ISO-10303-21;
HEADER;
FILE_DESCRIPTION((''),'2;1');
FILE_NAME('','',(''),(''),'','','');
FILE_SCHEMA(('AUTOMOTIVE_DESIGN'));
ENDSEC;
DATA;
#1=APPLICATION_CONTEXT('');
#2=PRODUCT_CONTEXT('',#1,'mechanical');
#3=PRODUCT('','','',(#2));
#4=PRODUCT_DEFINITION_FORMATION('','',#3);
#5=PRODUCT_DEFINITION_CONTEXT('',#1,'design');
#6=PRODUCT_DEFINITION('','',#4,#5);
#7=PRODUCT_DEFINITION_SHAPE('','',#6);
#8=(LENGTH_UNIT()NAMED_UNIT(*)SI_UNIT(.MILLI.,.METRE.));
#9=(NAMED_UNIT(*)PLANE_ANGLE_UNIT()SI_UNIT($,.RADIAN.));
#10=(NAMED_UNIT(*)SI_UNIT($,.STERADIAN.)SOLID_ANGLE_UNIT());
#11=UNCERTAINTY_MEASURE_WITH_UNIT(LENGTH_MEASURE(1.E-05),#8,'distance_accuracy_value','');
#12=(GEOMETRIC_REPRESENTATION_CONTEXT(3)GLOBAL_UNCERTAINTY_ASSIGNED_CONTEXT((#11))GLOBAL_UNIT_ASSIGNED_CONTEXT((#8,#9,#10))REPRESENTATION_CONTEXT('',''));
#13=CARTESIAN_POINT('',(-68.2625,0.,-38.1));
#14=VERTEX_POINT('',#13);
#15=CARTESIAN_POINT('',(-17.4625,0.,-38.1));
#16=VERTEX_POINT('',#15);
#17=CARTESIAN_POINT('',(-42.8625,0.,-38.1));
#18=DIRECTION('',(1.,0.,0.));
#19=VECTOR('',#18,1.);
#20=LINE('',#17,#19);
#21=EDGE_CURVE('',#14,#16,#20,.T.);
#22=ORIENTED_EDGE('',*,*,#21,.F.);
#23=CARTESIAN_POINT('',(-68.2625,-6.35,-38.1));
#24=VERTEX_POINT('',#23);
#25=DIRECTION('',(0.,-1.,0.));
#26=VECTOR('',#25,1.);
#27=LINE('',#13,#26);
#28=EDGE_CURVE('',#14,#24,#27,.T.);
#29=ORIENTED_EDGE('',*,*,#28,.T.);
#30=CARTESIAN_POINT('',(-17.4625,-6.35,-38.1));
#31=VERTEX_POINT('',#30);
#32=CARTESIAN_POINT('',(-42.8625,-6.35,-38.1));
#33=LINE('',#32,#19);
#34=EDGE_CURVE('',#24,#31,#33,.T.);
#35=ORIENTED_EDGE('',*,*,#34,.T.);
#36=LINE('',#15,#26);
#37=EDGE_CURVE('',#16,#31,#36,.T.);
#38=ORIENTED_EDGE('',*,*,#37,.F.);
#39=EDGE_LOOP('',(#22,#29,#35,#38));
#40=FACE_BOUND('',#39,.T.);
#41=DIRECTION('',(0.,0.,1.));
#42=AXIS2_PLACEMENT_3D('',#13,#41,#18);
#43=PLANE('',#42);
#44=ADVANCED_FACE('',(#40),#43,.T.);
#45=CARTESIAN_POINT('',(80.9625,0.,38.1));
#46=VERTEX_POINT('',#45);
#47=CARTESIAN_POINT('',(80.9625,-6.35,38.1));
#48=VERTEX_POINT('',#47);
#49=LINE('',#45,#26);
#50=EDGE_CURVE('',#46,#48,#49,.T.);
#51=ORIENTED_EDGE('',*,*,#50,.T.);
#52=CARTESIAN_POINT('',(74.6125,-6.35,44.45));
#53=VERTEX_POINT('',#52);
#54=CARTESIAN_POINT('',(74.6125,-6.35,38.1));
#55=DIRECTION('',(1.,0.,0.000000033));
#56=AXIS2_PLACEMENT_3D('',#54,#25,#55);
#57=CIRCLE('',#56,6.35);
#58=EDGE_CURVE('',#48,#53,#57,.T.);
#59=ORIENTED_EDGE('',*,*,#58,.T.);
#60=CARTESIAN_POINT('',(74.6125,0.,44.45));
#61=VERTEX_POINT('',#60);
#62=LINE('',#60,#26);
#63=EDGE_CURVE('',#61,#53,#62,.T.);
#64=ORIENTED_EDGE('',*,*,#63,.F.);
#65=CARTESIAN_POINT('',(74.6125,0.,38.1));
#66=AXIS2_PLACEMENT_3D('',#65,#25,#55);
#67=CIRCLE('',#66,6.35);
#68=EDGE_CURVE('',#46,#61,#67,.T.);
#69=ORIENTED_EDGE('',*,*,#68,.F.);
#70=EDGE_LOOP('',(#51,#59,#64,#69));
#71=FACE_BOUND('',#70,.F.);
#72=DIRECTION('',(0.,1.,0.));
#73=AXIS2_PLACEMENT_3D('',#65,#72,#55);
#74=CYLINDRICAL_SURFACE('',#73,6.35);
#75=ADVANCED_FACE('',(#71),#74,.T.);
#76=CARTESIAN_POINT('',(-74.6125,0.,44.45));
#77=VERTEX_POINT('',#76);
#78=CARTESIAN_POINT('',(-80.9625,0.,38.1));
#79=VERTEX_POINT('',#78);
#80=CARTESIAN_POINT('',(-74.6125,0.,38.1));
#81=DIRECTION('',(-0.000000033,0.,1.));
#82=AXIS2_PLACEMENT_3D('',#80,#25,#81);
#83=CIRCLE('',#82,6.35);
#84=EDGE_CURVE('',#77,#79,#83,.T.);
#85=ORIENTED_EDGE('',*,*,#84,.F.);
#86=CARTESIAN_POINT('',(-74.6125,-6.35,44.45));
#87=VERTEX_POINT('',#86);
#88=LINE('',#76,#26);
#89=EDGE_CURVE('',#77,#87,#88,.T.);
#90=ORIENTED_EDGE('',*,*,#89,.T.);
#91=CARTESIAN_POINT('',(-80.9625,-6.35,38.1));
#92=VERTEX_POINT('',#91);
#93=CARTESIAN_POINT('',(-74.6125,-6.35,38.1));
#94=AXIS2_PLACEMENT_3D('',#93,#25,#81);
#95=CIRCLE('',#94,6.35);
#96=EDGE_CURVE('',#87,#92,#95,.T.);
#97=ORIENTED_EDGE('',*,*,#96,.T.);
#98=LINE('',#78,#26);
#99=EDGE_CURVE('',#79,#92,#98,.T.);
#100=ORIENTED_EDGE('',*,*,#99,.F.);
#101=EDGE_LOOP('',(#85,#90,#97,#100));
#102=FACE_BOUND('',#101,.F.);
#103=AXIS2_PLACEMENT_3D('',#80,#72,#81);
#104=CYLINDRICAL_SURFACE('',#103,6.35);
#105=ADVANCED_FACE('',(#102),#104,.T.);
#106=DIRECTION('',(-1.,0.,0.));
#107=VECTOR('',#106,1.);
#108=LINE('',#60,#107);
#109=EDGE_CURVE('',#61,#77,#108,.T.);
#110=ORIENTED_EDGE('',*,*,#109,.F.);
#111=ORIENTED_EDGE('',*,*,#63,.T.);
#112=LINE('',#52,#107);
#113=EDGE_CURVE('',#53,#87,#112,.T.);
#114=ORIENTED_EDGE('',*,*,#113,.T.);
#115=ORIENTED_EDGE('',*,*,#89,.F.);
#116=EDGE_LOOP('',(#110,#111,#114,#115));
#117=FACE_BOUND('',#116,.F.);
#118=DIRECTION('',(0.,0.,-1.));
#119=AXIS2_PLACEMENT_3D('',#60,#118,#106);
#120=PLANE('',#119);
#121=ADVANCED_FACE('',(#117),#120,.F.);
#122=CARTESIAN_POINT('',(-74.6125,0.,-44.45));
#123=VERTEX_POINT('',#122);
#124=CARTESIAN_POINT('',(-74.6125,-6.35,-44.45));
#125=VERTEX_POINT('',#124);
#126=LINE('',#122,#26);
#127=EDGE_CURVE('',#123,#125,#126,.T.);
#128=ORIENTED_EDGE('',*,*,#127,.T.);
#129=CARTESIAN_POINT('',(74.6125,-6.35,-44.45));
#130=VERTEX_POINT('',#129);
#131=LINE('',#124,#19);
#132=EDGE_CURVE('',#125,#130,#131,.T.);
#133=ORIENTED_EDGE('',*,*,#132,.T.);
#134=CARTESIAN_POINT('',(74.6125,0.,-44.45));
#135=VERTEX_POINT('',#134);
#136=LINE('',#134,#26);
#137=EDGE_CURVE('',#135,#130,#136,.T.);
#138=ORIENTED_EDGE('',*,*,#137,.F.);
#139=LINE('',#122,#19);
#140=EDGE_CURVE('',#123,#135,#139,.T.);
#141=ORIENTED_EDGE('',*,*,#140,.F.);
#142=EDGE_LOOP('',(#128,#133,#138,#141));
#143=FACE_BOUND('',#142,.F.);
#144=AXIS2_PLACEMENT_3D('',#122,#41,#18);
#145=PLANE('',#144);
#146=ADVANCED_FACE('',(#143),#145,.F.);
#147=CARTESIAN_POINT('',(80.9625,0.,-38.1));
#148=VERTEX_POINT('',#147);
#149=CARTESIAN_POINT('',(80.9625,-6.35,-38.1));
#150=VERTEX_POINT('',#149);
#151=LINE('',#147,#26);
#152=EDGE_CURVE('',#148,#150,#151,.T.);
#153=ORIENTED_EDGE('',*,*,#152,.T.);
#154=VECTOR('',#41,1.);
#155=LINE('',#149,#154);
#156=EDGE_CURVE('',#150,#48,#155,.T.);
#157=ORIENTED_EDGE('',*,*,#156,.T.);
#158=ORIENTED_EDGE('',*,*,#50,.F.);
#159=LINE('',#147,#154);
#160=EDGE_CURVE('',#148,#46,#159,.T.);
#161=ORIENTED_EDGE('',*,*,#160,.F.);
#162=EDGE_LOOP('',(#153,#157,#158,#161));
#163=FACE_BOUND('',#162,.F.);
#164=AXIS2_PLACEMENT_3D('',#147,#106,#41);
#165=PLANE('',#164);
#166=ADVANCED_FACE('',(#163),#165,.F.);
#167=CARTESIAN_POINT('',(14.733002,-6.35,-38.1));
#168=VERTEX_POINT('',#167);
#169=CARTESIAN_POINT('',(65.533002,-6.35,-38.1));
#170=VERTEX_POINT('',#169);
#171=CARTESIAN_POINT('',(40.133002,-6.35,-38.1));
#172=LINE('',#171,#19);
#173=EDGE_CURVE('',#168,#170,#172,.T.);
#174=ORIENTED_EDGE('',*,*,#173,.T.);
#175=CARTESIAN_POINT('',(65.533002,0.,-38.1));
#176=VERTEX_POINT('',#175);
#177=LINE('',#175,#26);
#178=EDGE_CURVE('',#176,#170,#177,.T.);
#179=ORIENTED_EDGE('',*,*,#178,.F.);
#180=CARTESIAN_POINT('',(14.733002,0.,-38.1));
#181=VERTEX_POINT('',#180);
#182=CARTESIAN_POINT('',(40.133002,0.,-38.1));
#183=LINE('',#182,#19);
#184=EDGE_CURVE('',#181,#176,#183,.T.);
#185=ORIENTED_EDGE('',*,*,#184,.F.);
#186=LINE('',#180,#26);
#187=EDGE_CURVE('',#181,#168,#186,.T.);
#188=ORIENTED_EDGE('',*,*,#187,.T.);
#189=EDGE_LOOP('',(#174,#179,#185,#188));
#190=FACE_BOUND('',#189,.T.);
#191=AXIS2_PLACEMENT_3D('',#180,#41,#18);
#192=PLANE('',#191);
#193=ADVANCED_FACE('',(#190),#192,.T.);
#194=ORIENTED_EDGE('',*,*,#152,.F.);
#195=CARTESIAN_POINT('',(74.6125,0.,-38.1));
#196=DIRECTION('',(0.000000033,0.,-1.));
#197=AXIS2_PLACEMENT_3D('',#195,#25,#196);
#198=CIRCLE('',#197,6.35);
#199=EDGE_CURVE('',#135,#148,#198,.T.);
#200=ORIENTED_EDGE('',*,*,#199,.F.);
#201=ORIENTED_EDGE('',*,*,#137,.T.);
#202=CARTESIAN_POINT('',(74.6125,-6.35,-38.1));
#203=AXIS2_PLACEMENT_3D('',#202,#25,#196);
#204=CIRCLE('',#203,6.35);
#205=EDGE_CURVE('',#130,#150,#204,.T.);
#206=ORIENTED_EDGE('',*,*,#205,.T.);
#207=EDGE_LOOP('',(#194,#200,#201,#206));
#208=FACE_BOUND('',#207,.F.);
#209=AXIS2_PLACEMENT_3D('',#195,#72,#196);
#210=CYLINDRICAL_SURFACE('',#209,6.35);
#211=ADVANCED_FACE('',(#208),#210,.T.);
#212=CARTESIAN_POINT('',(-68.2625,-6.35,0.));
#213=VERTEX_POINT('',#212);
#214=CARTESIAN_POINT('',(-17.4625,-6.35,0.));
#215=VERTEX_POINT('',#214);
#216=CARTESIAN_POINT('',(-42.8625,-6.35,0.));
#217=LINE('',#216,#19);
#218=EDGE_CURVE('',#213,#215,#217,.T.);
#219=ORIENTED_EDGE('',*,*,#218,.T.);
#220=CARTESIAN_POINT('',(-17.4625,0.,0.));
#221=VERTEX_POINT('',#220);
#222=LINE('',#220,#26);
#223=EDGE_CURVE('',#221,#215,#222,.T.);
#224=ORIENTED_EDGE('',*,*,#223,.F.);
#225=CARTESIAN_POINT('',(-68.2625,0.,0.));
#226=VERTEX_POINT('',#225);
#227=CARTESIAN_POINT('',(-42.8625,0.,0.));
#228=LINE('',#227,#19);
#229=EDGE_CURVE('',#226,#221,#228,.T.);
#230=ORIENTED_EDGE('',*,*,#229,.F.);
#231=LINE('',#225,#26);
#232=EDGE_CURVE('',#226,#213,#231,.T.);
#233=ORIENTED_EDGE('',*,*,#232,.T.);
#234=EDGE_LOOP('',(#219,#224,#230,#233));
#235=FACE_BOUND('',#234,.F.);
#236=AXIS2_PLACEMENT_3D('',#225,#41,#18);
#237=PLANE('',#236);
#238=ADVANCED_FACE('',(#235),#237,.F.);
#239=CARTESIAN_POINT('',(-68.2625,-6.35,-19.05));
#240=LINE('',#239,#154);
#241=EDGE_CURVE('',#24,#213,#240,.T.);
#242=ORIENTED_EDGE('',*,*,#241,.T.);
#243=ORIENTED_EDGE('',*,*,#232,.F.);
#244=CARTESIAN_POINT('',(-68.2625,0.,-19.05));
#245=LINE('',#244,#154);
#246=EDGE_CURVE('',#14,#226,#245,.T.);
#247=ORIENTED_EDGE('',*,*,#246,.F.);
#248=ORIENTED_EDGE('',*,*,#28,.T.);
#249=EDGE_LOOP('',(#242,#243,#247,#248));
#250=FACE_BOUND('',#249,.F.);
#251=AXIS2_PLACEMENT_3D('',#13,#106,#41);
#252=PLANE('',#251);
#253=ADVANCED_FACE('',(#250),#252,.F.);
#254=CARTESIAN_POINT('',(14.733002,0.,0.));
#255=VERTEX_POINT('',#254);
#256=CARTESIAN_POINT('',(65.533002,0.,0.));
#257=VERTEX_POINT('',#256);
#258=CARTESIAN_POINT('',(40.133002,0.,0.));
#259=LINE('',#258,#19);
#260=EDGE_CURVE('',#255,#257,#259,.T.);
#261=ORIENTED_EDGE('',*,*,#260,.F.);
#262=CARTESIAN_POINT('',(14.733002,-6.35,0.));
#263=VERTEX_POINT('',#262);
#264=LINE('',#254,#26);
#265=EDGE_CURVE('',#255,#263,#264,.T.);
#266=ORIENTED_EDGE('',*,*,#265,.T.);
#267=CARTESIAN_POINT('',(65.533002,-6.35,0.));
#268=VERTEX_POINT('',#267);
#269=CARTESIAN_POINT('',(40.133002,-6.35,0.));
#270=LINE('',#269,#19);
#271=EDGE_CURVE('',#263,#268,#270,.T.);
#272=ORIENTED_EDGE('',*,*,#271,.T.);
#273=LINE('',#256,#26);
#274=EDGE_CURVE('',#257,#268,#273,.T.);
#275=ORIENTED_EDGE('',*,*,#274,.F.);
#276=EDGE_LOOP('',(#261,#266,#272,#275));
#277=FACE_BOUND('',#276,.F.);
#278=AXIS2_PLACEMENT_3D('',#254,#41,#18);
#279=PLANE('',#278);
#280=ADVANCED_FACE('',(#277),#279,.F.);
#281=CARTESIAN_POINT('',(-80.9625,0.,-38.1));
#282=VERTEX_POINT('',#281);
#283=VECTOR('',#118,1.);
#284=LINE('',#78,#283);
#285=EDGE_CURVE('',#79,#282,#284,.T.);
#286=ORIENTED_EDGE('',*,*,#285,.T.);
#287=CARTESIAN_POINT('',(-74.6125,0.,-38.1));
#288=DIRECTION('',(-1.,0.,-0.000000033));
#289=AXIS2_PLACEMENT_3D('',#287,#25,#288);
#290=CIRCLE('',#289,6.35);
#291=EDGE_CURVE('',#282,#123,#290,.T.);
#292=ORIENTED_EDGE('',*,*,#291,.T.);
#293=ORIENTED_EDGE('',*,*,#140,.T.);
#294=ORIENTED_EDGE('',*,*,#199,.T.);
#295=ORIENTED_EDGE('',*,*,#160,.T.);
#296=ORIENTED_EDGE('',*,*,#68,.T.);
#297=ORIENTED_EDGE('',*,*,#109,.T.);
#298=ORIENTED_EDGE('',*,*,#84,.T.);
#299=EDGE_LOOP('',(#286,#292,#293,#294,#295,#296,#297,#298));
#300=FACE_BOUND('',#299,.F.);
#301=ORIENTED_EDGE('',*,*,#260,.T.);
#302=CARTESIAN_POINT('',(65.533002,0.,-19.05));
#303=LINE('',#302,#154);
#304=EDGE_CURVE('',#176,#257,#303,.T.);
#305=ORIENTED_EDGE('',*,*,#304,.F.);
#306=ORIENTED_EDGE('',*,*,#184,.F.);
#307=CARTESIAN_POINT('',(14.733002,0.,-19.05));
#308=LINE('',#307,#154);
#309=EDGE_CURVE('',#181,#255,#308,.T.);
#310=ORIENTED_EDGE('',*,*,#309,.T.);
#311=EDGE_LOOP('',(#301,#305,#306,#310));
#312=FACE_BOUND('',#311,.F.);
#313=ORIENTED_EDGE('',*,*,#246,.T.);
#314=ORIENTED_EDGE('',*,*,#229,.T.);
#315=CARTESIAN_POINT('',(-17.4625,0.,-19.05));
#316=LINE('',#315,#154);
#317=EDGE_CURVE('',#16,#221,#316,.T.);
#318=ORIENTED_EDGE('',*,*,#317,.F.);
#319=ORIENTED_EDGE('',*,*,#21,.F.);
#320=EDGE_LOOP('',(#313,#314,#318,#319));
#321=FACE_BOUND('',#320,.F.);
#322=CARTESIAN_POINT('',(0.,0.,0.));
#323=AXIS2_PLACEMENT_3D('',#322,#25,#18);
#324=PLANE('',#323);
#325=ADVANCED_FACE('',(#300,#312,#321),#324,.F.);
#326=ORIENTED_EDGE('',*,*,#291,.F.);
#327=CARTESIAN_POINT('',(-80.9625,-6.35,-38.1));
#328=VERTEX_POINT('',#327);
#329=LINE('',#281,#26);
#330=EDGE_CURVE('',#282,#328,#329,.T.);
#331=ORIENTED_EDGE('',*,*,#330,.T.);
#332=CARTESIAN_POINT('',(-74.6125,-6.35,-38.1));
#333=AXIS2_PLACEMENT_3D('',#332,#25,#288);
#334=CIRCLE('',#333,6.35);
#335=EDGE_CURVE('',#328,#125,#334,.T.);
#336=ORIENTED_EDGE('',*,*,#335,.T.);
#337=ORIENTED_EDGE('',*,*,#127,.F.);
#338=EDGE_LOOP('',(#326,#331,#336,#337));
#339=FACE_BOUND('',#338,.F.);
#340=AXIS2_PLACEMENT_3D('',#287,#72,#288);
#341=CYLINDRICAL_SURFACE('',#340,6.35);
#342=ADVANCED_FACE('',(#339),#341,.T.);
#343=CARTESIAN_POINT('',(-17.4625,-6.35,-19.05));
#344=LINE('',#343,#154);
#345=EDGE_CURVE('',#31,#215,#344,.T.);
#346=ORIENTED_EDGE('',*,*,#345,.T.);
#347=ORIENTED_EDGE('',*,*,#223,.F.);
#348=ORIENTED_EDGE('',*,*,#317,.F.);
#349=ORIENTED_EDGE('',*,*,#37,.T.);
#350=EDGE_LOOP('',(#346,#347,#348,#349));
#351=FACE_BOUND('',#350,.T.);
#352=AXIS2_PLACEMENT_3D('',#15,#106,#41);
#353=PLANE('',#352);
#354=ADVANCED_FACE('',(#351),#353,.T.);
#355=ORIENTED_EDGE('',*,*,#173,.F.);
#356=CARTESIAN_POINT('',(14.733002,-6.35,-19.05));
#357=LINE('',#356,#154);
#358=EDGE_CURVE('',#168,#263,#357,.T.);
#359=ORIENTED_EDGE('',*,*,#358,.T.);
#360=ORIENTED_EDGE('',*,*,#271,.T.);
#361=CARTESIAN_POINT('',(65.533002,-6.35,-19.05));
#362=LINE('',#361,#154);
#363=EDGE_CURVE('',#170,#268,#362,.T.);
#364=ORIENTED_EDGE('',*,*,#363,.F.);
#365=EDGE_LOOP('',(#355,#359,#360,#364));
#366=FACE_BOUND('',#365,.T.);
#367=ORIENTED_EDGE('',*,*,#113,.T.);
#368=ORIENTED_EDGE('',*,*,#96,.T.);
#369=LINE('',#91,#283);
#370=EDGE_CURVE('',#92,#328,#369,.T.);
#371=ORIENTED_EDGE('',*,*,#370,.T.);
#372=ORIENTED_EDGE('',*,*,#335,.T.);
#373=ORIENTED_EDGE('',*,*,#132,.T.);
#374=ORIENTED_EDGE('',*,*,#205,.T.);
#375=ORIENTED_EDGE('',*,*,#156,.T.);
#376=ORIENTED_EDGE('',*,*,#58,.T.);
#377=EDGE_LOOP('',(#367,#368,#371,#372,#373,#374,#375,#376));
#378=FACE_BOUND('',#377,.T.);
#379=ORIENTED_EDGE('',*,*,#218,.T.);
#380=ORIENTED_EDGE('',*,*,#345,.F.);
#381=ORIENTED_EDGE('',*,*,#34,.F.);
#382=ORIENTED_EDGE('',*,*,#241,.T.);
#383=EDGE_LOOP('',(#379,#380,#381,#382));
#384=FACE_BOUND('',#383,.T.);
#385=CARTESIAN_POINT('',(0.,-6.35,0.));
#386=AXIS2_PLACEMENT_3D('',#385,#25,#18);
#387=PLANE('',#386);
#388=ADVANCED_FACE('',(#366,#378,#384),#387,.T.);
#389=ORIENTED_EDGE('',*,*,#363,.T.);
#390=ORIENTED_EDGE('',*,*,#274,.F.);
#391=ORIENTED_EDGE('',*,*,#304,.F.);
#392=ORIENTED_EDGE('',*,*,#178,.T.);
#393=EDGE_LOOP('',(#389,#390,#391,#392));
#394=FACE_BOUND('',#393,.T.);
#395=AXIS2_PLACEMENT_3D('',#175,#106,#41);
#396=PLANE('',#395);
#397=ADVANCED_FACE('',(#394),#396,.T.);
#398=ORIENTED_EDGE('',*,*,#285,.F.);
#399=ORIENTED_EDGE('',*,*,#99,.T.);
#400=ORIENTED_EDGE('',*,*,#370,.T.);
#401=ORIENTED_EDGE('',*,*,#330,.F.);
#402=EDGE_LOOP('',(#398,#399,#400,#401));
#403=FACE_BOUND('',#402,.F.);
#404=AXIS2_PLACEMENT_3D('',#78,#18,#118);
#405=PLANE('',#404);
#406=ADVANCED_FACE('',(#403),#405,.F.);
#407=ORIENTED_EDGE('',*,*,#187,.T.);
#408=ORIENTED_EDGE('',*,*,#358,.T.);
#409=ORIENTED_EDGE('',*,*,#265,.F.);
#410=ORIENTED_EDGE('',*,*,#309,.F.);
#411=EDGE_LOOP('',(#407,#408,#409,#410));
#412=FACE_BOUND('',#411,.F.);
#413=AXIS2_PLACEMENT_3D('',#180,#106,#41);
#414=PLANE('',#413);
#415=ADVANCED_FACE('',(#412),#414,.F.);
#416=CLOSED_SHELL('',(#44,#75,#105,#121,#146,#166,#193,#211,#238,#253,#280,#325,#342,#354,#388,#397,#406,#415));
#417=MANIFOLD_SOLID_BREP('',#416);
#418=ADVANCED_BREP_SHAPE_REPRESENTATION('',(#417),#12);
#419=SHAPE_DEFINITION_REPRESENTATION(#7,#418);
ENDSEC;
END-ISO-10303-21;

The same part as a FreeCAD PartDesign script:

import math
import FreeCAD as App
import Part
import Sketcher

V = App.Vector
Q = App.Units.Quantity

doc = App.newDocument("Part")
params = doc.addObject("Spreadsheet::Sheet", "Params")
for row, (alias, value) in enumerate([
    ("sketch1_width", "2 in"),
    ("sketch1_height", "3 in"),
    ("sketch1_radius", "0.25 in"),
    ("sketch1_width2", "5.875 in"),
    ("pad1_length", "0.25 in"),
], start=1):
    params.set(f"A{row}", alias)
    params.set(f"B{row}", "=" + value)
    params.setAlias(f"B{row}", alias)

body = doc.addObject("PartDesign::Body", "Body")

sketch1 = body.newObject("Sketcher::SketchObject", "Sketch")
sketch1.AttachmentSupport = (doc.getObject("XZ_Plane"), [""])
sketch1.MapMode = "FlatFace"
sketch1.addGeometry([
    Part.ArcOfCircle(Part.Circle(V(74.6125, 38.1, 0), V(0, 0, 1), 6.35), math.radians(0.000002), math.radians(89.999998)),
    Part.LineSegment(V(74.6125, 44.45, 0), V(-74.6125, 44.45, 0)),
    Part.ArcOfCircle(Part.Circle(V(-74.6125, 38.1, 0), V(0, 0, 1), 6.35), math.radians(90.000002), math.radians(179.999998)),
    Part.LineSegment(V(-80.9625, 38.1, 0), V(-80.9625, -38.1, 0)),
    Part.ArcOfCircle(Part.Circle(V(-74.6125, -38.1, 0), V(0, 0, 1), 6.35), math.radians(-179.999998), math.radians(-90.000002)),
    Part.LineSegment(V(-74.6125, -44.45, 0), V(74.6125, -44.45, 0)),
    Part.ArcOfCircle(Part.Circle(V(74.6125, -38.1, 0), V(0, 0, 1), 6.35), math.radians(-89.999998), math.radians(-0.000002)),
    Part.LineSegment(V(80.9625, -38.1, 0), V(80.9625, 38.1, 0)),
    Part.LineSegment(V(-17.4625, -38.1, 0), V(-68.2625, -38.1, 0)),
    Part.LineSegment(V(-68.2625, -38.1, 0), V(-68.2625, 0, 0)),
    Part.LineSegment(V(-68.2625, 0, 0), V(-17.4625, 0, 0)),
    Part.LineSegment(V(-17.4625, 0, 0), V(-17.4625, -38.1, 0)),
    Part.LineSegment(V(65.533002, -38.1, 0), V(14.733002, -38.1, 0)),
    Part.LineSegment(V(14.733002, -38.1, 0), V(14.733002, 0, 0)),
    Part.LineSegment(V(14.733002, 0, 0), V(65.533002, 0, 0)),
    Part.LineSegment(V(65.533002, 0, 0), V(65.533002, -38.1, 0)),
], False)
sketch1.addConstraint([
    Sketcher.Constraint("Tangent", 0, 2, 1, 1),
    Sketcher.Constraint("Tangent", 1, 2, 2, 1),
    Sketcher.Constraint("Tangent", 2, 2, 3, 1),
    Sketcher.Constraint("Tangent", 3, 2, 4, 1),
    Sketcher.Constraint("Tangent", 4, 2, 5, 1),
    Sketcher.Constraint("Tangent", 5, 2, 6, 1),
    Sketcher.Constraint("Tangent", 6, 2, 7, 1),
    Sketcher.Constraint("Tangent", 7, 2, 0, 1),
    Sketcher.Constraint("Coincident", 8, 2, 9, 1),
    Sketcher.Constraint("Coincident", 9, 2, 10, 1),
    Sketcher.Constraint("Coincident", 10, 2, 11, 1),
    Sketcher.Constraint("Coincident", 11, 2, 8, 1),
    Sketcher.Constraint("Coincident", 12, 2, 13, 1),
    Sketcher.Constraint("Coincident", 13, 2, 14, 1),
    Sketcher.Constraint("Coincident", 14, 2, 15, 1),
    Sketcher.Constraint("Coincident", 15, 2, 12, 1),
    Sketcher.Constraint("Horizontal", 1),
    Sketcher.Constraint("Vertical", 3),
    Sketcher.Constraint("Horizontal", 5),
    Sketcher.Constraint("Vertical", 7),
    Sketcher.Constraint("Horizontal", 8),
    Sketcher.Constraint("Vertical", 9),
    Sketcher.Constraint("Horizontal", 10),
    Sketcher.Constraint("Vertical", 11),
    Sketcher.Constraint("Horizontal", 12),
    Sketcher.Constraint("Vertical", 13),
    Sketcher.Constraint("Horizontal", 14),
    Sketcher.Constraint("Vertical", 15),
    Sketcher.Constraint("Equal", 0, 2),
    Sketcher.Constraint("Equal", 2, 4),
    Sketcher.Constraint("Equal", 4, 6),
    Sketcher.Constraint("Symmetric", 0, 3, 4, 3, -1, 1),
    Sketcher.Constraint("PointOnObject", 9, 2, -1),
    Sketcher.Constraint("PointOnObject", 13, 2, -1),
    Sketcher.Constraint("Horizontal", 6, 2, 8, 2),
    Sketcher.Constraint("Horizontal", 11, 2, 12, 2),
    Sketcher.Constraint("Equal", 10, 12),
    Sketcher.Constraint("DistanceX", 8, 2, 8, 1, Q("2 in")),
    Sketcher.Constraint("DistanceY", 3, 2, 3, 1, Q("3 in")),
    Sketcher.Constraint("Radius", 0, Q("0.25 in")),
    Sketcher.Constraint("DistanceX", 3, 2, 8, 2, Q("0.5 in")),
    Sketcher.Constraint("DistanceX", 1, 2, 1, 1, Q("5.875 in")),
    Sketcher.Constraint("DistanceX", -1, 1, 14, 2, Q("65.533002 mm")),
])
sketch1.setExpression("Constraints[37]", "Params.sketch1_width")
sketch1.setExpression("Constraints[38]", "Params.sketch1_height")
sketch1.setExpression("Constraints[39]", "Params.sketch1_radius")
sketch1.setExpression("Constraints[41]", "Params.sketch1_width2")
pad1 = body.newObject("PartDesign::Pad", "Pad")
pad1.Profile = sketch1
pad1.setExpression("Length", "Params.pad1_length")

doc.recompute()
